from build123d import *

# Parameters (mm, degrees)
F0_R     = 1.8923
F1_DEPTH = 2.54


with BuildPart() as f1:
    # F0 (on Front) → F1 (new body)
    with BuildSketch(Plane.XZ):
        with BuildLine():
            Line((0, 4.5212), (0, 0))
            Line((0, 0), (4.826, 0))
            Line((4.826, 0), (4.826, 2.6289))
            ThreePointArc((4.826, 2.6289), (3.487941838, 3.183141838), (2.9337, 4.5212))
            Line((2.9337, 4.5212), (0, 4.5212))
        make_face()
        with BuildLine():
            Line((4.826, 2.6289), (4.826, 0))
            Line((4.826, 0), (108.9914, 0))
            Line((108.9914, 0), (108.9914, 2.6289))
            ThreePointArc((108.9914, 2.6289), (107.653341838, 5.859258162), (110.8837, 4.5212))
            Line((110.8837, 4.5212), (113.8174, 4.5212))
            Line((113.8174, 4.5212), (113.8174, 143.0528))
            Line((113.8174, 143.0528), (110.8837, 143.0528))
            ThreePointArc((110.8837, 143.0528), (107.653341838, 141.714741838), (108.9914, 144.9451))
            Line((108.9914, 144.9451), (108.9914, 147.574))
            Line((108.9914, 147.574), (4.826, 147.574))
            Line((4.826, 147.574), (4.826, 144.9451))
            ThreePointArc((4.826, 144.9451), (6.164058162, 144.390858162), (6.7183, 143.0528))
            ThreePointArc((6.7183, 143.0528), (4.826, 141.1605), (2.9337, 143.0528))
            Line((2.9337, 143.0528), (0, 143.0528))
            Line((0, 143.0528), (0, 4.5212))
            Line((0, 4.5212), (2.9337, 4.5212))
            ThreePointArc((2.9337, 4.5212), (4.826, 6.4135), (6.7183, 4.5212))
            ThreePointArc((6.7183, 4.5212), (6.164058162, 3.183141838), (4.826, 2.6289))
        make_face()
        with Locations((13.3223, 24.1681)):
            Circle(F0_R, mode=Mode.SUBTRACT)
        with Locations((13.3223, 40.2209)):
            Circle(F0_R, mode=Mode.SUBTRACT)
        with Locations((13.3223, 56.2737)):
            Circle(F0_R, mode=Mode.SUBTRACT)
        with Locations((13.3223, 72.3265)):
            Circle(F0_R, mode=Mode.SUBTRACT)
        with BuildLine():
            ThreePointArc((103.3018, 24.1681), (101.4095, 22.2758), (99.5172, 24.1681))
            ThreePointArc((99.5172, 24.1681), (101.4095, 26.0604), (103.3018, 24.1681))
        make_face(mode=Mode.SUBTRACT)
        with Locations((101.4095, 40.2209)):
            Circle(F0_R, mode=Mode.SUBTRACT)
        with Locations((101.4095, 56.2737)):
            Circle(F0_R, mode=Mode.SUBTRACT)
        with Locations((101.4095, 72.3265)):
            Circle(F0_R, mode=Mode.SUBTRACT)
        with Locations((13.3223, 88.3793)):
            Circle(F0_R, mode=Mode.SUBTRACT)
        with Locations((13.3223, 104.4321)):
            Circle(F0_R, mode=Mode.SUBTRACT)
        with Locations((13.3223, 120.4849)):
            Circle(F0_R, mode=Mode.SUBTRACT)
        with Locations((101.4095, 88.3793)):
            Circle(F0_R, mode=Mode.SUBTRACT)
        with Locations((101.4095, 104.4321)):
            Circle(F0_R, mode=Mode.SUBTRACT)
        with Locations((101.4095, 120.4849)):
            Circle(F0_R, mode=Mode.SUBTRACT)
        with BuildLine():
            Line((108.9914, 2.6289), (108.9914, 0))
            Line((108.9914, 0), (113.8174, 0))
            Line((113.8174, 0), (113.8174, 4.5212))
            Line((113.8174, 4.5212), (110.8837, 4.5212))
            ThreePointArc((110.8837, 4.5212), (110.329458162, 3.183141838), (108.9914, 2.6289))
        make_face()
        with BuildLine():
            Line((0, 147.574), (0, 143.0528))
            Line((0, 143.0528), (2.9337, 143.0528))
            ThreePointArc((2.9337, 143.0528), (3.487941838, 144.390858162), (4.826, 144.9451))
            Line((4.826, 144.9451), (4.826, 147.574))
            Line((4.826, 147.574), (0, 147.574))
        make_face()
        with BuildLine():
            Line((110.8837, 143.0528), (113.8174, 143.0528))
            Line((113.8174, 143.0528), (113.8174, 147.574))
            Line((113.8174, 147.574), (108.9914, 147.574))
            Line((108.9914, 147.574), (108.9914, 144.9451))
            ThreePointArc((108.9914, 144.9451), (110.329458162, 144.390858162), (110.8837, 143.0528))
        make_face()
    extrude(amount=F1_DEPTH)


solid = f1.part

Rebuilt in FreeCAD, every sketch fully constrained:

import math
import FreeCAD as App
import Part
import Sketcher

V = App.Vector
Q = App.Units.Quantity

doc = App.newDocument("Part")
body = doc.addObject("PartDesign::Body", "Body")

sketch1 = body.newObject("Sketcher::SketchObject", "Sketch")
sketch1.AttachmentSupport = (doc.getObject("XZ_Plane"), [""])
sketch1.MapMode = "FlatFace"
sketch1.addGeometry(Part.LineSegment(V(0, 0, 0), V(113.8, 0, 0)), False)
sketch1.addGeometry(Part.LineSegment(V(113.8, 0, 0), V(113.8, 147.6, 0)), False)
sketch1.addGeometry(Part.LineSegment(V(113.8, 147.6, 0), V(0, 147.6, 0)), False)
sketch1.addGeometry(Part.LineSegment(V(0, 147.6, 0), V(0, 0, 0)), False)
sketch1.addGeometry(Part.ArcOfCircle(Part.Circle(V(109, 143.1, 0), V(0, 0, 1), 1.9), math.radians(90), math.radians(360)), False)
sketch1.addGeometry(Part.ArcOfCircle(Part.Circle(V(109, 143.1, 0), V(0, 0, 1), 1.9), math.radians(0), math.radians(90)), False)
sketch1.addGeometry(Part.ArcOfCircle(Part.Circle(V(4.8, 143.1, 0), V(0, 0, 1), 1.9), math.radians(0), math.radians(90)), False)
sketch1.addGeometry(Part.ArcOfCircle(Part.Circle(V(4.8, 143.1, 0), V(0, 0, 1), 1.9), math.radians(180), math.radians(360)), False)
sketch1.addGeometry(Part.ArcOfCircle(Part.Circle(V(4.8, 143.1, 0), V(0, 0, 1), 1.9), math.radians(90), math.radians(180)), False)
sketch1.addGeometry(Part.ArcOfCircle(Part.Circle(V(109, 4.5, 0), V(0, 0, 1), 1.9), math.radians(0), math.radians(270)), False)
sketch1.addGeometry(Part.ArcOfCircle(Part.Circle(V(109, 4.5, 0), V(0, 0, 1), 1.9), math.radians(-90), math.radians(0)), False)
sketch1.addGeometry(Part.ArcOfCircle(Part.Circle(V(4.8, 4.5, 0), V(0, 0, 1), 1.9), math.radians(180), math.radians(270)), False)
sketch1.addGeometry(Part.ArcOfCircle(Part.Circle(V(4.8, 4.5, 0), V(0, 0, 1), 1.9), math.radians(0), math.radians(180)), False)
sketch1.addGeometry(Part.ArcOfCircle(Part.Circle(V(4.8, 4.5, 0), V(0, 0, 1), 1.9), math.radians(-90), math.radians(0)), False)
sketch1.addGeometry(Part.Circle(V(13.3, 24.2, 0), V(0, 0, 1), 1.9), False)
sketch1.addGeometry(Part.Circle(V(13.3, 40.2, 0), V(0, 0, 1), 1.9), False)
sketch1.addGeometry(Part.Circle(V(13.3, 56.3, 0), V(0, 0, 1), 1.9), False)
sketch1.addGeometry(Part.Circle(V(101.4, 24.2, 0), V(0, 0, 1), 1.9), False)
sketch1.addGeometry(Part.Circle(V(101.4, 40.2, 0), V(0, 0, 1), 1.9), False)
sketch1.addGeometry(Part.Circle(V(101.4, 56.3, 0), V(0, 0, 1), 1.9), False)
sketch1.addGeometry(Part.Circle(V(13.3, 72.3, 0), V(0, 0, 1), 1.9), False)
sketch1.addGeometry(Part.Circle(V(13.3, 88.4, 0), V(0, 0, 1), 1.9), False)
sketch1.addGeometry(Part.Circle(V(13.3, 104.4, 0), V(0, 0, 1), 1.9), False)
sketch1.addGeometry(Part.Circle(V(13.3, 120.5, 0), V(0, 0, 1), 1.9), False)
sketch1.addGeometry(Part.Circle(V(101.4, 72.3, 0), V(0, 0, 1), 1.9), False)
sketch1.addGeometry(Part.Circle(V(101.4, 88.4, 0), V(0, 0, 1), 1.9), False)
sketch1.addGeometry(Part.Circle(V(101.4, 104.4, 0), V(0, 0, 1), 1.9), False)
sketch1.addGeometry(Part.Circle(V(101.4, 120.5, 0), V(0, 0, 1), 1.9), False)
sketch1.addConstraint(Sketcher.Constraint("Coincident", 0, 2, 1, 1))
sketch1.addConstraint(Sketcher.Constraint("Coincident", 1, 2, 2, 1))
sketch1.addConstraint(Sketcher.Constraint("Coincident", 2, 2, 3, 1))
sketch1.addConstraint(Sketcher.Constraint("Coincident", 3, 2, 0, 1))
sketch1.addConstraint(Sketcher.Constraint("Tangent", 4, 1, 5, 2))
sketch1.addConstraint(Sketcher.Constraint("Coincident", 5, 1, 4, 2))
sketch1.addConstraint(Sketcher.Constraint("Tangent", 6, 1, 7, 2))
sketch1.addConstraint(Sketcher.Constraint("Tangent", 7, 1, 8, 2))
sketch1.addConstraint(Sketcher.Constraint("Tangent", 8, 1, 6, 2))
sketch1.addConstraint(Sketcher.Constraint("Tangent", 9, 1, 10, 2))
sketch1.addConstraint(Sketcher.Constraint("Coincident", 10, 1, 9, 2))
sketch1.addConstraint(Sketcher.Constraint("Tangent", 11, 1, 12, 2))
sketch1.addConstraint(Sketcher.Constraint("Tangent", 12, 1, 13, 2))
sketch1.addConstraint(Sketcher.Constraint("Tangent", 13, 1, 11, 2))
sketch1.addConstraint(Sketcher.Constraint("Horizontal", 0))
sketch1.addConstraint(Sketcher.Constraint("Vertical", 1))
sketch1.addConstraint(Sketcher.Constraint("Horizontal", 2))
sketch1.addConstraint(Sketcher.Constraint("Vertical", 3))
sketch1.addConstraint(Sketcher.Constraint("Coincident", 3, 2, -1, 1))
sketch1.addConstraint(Sketcher.Constraint("Equal", 5, 6))
sketch1.addConstraint(Sketcher.Constraint("Equal", 8, 9))
sketch1.addConstraint(Sketcher.Constraint("Equal", 10, 11))
sketch1.addConstraint(Sketcher.Constraint("Equal", 13, 14))
sketch1.addConstraint(Sketcher.Constraint("Equal", 14, 15))
sketch1.addConstraint(Sketcher.Constraint("Equal", 15, 16))
sketch1.addConstraint(Sketcher.Constraint("Equal", 16, 17))
sketch1.addConstraint(Sketcher.Constraint("Equal", 17, 18))
sketch1.addConstraint(Sketcher.Constraint("Equal", 18, 19))
sketch1.addConstraint(Sketcher.Constraint("Equal", 19, 20))
sketch1.addConstraint(Sketcher.Constraint("Equal", 20, 21))
sketch1.addConstraint(Sketcher.Constraint("Equal", 21, 22))
sketch1.addConstraint(Sketcher.Constraint("Equal", 22, 23))
sketch1.addConstraint(Sketcher.Constraint("Equal", 23, 24))
sketch1.addConstraint(Sketcher.Constraint("Equal", 24, 25))
sketch1.addConstraint(Sketcher.Constraint("Equal", 25, 26))
sketch1.addConstraint(Sketcher.Constraint("Equal", 26, 27))
sketch1.addConstraint(Sketcher.Constraint("Horizontal", 5, 3, 6, 3))
sketch1.addConstraint(Sketcher.Constraint("Horizontal", 10, 3, 11, 3))
sketch1.addConstraint(Sketcher.Constraint("Horizontal", 14, 3, 17, 3))
sketch1.addConstraint(Sketcher.Constraint("Horizontal", 15, 3, 18, 3))
sketch1.addConstraint(Sketcher.Constraint("Horizontal", 16, 3, 19, 3))
sketch1.addConstraint(Sketcher.Constraint("Horizontal", 20, 3, 24, 3))
sketch1.addConstraint(Sketcher.Constraint("Horizontal", 21, 3, 25, 3))
sketch1.addConstraint(Sketcher.Constraint("Horizontal", 22, 3, 26, 3))
sketch1.addConstraint(Sketcher.Constraint("Horizontal", 23, 3, 27, 3))
sketch1.addConstraint(Sketcher.Constraint("Horizontal", 8, 3, 5, 1))
sketch1.addConstraint(Sketcher.Constraint("Horizontal", 5, 1, 6, 1))
sketch1.addConstraint(Sketcher.Constraint("Horizontal", 6, 1, 7, 1))
sketch1.addConstraint(Sketcher.Constraint("Horizontal", 13, 3, 9, 1))
sketch1.addConstraint(Sketcher.Constraint("Horizontal", 9, 1, 11, 1))
sketch1.addConstraint(Sketcher.Constraint("Horizontal", 11, 1, 12, 1))
sketch1.addConstraint(Sketcher.Constraint("Vertical", 5, 3, 9, 3))
sketch1.addConstraint(Sketcher.Constraint("Vertical", 8, 3, 11, 3))
sketch1.addConstraint(Sketcher.Constraint("Vertical", 14, 3, 15, 3))
sketch1.addConstraint(Sketcher.Constraint("Vertical", 15, 3, 16, 3))
sketch1.addConstraint(Sketcher.Constraint("Vertical", 17, 3, 18, 3))
sketch1.addConstraint(Sketcher.Constraint("Vertical", 18, 3, 19, 3))
sketch1.addConstraint(Sketcher.Constraint("Vertical", 16, 3, 20, 3))
sketch1.addConstraint(Sketcher.Constraint("Vertical", 20, 3, 21, 3))
sketch1.addConstraint(Sketcher.Constraint("Vertical", 21, 3, 22, 3))
sketch1.addConstraint(Sketcher.Constraint("Vertical", 22, 3, 23, 3))
sketch1.addConstraint(Sketcher.Constraint("Vertical", 19, 3, 24, 3))
sketch1.addConstraint(Sketcher.Constraint("Vertical", 24, 3, 25, 3))
sketch1.addConstraint(Sketcher.Constraint("Vertical", 25, 3, 26, 3))
sketch1.addConstraint(Sketcher.Constraint("Vertical", 26, 3, 27, 3))
sketch1.addConstraint(Sketcher.Constraint("Vertical", 10, 3, 4, 1))
sketch1.addConstraint(Sketcher.Constraint("Vertical", 13, 3, 8, 1))
sketch1.addConstraint(Sketcher.Constraint("Vertical", 4, 1, 10, 1))
sketch1.addConstraint(Sketcher.Constraint("Vertical", 8, 1, 13, 1))
sketch1.addConstraint(Sketcher.Constraint("Diameter", 14, Q("0.149 in")))
sketch1.addConstraint(Sketcher.Constraint("DistanceY", 1, 1, 1, 2, Q("5.81 in")))
sketch1.addConstraint(Sketcher.Constraint("DistanceX", 0, 1, 0, 2, Q("4.481 in")))
sketch1.addConstraint(Sketcher.Constraint("DistanceX", -1, 1, 6, 3, Q("0.19 in")))
sketch1.addConstraint(Sketcher.Constraint("DistanceX", 9, 3, 0, 2, Q("0.19 in")))
sketch1.addConstraint(Sketcher.Constraint("DistanceX", 6, 1, 23, 3, Q("0.26 in")))
sketch1.addConstraint(Sketcher.Constraint("DistanceY", -1, 1, 4, 3, Q("5.632 in")))
sketch1.addConstraint(Sketcher.Constraint("DistanceY", -1, 1, 9, 3, Q("0.178 in")))
sketch1.addConstraint(Sketcher.Constraint("DistanceY", 14, 3, 15, 3, Q("0.632 in")))
sketch1.addConstraint(Sketcher.Constraint("DistanceY", 15, 3, 16, 3, Q("0.632 in")))
sketch1.addConstraint(Sketcher.Constraint("DistanceX", 14, 3, 17, 3, Q("3.468 in")))
sketch1.addConstraint(Sketcher.Constraint("DistanceY", 16, 3, 20, 3, Q("0.632 in")))
sketch1.addConstraint(Sketcher.Constraint("DistanceY", 20, 3, 21, 3, Q("0.632 in")))
sketch1.addConstraint(Sketcher.Constraint("DistanceY", 21, 3, 22, 3, Q("0.632 in")))
sketch1.addConstraint(Sketcher.Constraint("DistanceY", 22, 3, 23, 3, Q("0.632 in")))
sketch1.addConstraint(Sketcher.Constraint("DistanceY", 27, 3, 4, 1, Q("0.963 in")))
pad1 = body.newObject("PartDesign::Pad", "Pad")
pad1.Profile = sketch1
pad1.Length = Q("0.1 in")

doc.recompute()
